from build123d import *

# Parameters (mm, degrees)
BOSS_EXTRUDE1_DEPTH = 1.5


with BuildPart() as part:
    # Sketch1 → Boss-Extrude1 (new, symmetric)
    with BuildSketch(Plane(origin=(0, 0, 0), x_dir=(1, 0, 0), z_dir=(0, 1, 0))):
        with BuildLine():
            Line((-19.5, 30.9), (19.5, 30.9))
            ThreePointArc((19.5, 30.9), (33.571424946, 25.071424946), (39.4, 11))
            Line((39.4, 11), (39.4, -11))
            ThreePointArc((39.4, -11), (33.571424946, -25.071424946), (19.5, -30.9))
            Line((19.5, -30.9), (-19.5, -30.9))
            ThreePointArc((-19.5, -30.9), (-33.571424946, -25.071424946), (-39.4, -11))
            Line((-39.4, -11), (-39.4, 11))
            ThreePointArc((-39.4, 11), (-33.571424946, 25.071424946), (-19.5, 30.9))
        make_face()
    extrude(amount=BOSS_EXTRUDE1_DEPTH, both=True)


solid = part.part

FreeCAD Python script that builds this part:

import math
import FreeCAD as App
import Part
import Sketcher
Q = App.Units.Quantity

doc = App.newDocument("Part")
body = doc.addObject("PartDesign::Body", "Body")

sketch1 = doc.addObject("Sketcher::SketchObject", "Sketch")
body.addObject(sketch1)
sketch1.AttachmentSupport = (doc.XZ_Plane, [""])
sketch1.MapMode = "FlatFace"
sketch1.addGeometry([
    Part.LineSegment(App.Vector(19.5, -30.9, 0), App.Vector(-19.5, -30.9, 0)),
    Part.ArcOfCircle(Part.Circle(App.Vector(-19.5, -11, 0), App.Vector(0, 0, 1), 19.9), math.radians(180), math.radians(270)),
    Part.LineSegment(App.Vector(-39.4, -11, 0), App.Vector(-39.4, 11, 0)),
    Part.ArcOfCircle(Part.Circle(App.Vector(-19.5, 11, 0), App.Vector(0, 0, 1), 19.9), math.radians(90), math.radians(180)),
    Part.LineSegment(App.Vector(-19.5, 30.9, 0), App.Vector(19.5, 30.9, 0)),
    Part.ArcOfCircle(Part.Circle(App.Vector(19.5, 11, 0), App.Vector(0, 0, 1), 19.9), math.radians(0), math.radians(90)),
    Part.LineSegment(App.Vector(39.4, 11, 0), App.Vector(39.4, -11, 0)),
    Part.ArcOfCircle(Part.Circle(App.Vector(19.5, -11, 0), App.Vector(0, 0, 1), 19.9), math.radians(-90), math.radians(0)),
], False)
sketch1.addConstraint([
    Sketcher.Constraint("Tangent", 0, 2, 1, 2),
    Sketcher.Constraint("Tangent", 1, 1, 2, 1),
    Sketcher.Constraint("Tangent", 2, 2, 3, 2),
    Sketcher.Constraint("Tangent", 3, 1, 4, 1),
    Sketcher.Constraint("Tangent", 4, 2, 5, 2),
    Sketcher.Constraint("Tangent", 5, 1, 6, 1),
    Sketcher.Constraint("Tangent", 6, 2, 7, 2),
    Sketcher.Constraint("Tangent", 7, 1, 0, 1),
    Sketcher.Constraint("Horizontal", 0),
    Sketcher.Constraint("Vertical", 2),
    Sketcher.Constraint("Horizontal", 4),
    Sketcher.Constraint("Vertical", 6),
    Sketcher.Constraint("Equal", 1, 3),
    Sketcher.Constraint("Equal", 3, 5),
    Sketcher.Constraint("Equal", 5, 7),
    Sketcher.Constraint("Symmetric", 1, 3, 5, 3, -1, 1),
    Sketcher.Constraint("Radius", 1, Q("19.9 mm")),
    Sketcher.Constraint("DistanceX", 0, 2, 0, 1, Q("39 mm")),
    Sketcher.Constraint("DistanceY", 2, 1, 2, 2, Q("22 mm")),
])
pad1 = doc.addObject("PartDesign::Pad", "Pad")
body.addObject(pad1)
pad1.Profile = sketch1
pad1.Length = 3
pad1.Midplane = True

doc.recompute()
